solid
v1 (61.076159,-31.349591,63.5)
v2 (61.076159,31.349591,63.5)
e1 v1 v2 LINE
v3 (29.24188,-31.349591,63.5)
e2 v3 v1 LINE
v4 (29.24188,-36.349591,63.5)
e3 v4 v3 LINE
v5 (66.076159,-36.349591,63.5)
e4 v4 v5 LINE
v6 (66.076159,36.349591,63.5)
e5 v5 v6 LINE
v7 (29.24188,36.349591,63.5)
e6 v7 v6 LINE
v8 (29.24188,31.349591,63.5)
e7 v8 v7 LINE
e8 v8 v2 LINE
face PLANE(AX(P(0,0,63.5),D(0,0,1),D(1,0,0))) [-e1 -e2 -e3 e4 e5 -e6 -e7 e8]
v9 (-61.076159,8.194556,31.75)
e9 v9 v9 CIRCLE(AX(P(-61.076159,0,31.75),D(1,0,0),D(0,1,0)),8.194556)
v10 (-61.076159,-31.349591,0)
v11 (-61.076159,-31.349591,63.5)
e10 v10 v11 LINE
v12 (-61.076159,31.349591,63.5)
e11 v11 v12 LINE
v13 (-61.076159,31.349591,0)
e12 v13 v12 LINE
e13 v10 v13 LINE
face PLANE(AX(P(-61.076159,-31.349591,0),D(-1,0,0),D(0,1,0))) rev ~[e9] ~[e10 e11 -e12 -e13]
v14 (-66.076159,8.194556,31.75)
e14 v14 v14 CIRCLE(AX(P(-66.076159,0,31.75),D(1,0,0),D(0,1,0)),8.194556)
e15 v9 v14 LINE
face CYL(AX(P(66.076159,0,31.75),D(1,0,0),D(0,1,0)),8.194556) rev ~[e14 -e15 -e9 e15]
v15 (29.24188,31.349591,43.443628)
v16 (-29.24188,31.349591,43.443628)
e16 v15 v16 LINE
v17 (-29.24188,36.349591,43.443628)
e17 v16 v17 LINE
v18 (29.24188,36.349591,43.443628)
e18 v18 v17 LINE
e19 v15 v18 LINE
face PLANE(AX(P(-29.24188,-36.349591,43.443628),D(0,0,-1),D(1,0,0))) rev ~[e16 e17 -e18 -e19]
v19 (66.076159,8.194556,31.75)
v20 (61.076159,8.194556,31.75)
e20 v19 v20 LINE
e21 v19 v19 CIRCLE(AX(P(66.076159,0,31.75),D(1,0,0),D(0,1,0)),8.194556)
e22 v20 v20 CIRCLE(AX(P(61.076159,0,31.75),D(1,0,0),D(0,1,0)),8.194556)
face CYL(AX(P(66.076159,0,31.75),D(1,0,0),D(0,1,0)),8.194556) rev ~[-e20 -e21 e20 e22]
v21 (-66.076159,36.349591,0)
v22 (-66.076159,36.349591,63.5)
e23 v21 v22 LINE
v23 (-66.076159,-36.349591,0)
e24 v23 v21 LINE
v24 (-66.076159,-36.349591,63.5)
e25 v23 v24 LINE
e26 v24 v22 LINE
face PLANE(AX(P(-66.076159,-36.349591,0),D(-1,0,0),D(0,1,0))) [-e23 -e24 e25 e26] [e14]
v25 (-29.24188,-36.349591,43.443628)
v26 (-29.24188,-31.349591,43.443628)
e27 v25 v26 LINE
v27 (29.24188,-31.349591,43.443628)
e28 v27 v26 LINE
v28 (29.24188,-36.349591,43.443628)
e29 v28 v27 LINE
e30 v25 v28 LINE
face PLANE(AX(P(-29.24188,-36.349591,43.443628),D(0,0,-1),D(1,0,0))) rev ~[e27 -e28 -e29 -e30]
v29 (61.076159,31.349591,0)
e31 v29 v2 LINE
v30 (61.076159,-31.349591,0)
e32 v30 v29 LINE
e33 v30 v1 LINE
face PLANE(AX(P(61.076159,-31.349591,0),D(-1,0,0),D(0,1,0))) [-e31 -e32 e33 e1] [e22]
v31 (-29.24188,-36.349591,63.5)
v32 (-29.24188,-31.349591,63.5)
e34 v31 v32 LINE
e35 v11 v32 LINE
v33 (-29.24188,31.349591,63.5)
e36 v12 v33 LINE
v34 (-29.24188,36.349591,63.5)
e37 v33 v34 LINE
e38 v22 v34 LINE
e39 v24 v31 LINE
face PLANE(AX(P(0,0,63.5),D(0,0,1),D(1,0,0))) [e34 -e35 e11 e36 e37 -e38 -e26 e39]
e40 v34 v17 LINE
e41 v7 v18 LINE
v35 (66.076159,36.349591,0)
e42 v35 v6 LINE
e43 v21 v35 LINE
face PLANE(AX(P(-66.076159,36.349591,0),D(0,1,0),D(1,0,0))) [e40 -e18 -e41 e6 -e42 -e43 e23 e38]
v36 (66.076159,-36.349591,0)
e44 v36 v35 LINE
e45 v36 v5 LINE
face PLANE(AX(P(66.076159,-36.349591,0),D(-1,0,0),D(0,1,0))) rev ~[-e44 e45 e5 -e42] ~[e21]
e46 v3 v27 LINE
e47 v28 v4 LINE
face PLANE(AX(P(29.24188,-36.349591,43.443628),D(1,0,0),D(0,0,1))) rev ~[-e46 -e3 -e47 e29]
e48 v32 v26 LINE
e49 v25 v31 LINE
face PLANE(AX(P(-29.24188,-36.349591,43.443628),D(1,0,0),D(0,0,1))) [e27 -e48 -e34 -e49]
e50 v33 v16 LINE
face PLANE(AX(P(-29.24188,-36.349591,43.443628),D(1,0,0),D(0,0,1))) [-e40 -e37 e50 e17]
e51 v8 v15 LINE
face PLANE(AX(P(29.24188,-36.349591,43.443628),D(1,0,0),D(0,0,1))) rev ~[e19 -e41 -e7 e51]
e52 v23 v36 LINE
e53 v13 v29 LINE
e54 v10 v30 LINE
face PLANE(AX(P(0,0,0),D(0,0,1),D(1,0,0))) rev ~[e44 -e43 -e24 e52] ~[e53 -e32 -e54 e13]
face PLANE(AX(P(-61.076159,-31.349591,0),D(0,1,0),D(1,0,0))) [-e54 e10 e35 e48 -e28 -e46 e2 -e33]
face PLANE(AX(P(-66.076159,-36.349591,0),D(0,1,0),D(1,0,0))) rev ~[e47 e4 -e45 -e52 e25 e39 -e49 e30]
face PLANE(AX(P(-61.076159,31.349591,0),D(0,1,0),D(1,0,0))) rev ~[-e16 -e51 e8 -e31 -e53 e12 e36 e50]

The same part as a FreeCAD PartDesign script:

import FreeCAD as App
import Part
import Sketcher
Q = App.Units.Quantity

doc = App.newDocument("Part")
params = doc.addObject("Spreadsheet::Sheet", "Params")
for row, (alias, value) in enumerate([
    ("pad1_length", "2.5 in"),
], start=1):
    params.set(f"A{row}", alias)
    params.set(f"B{row}", "=" + value)
    params.setAlias(f"B{row}", alias)

body = doc.addObject("PartDesign::Body", "Body")

# Sketch on XY plane
sketch1 = doc.addObject("Sketcher::SketchObject", "Sketch")
body.addObject(sketch1)
sketch1.AttachmentSupport = (doc.XY_Plane, [""])
sketch1.MapMode = "FlatFace"
sketch1.addGeometry([
    Part.LineSegment(App.Vector(-66.076159, 36.349591, 0), App.Vector(-66.076159, -36.349591, 0)),  # 0
    Part.LineSegment(App.Vector(-66.076159, -36.349591, 0), App.Vector(66.076159, -36.349591, 0)),  # 1
    Part.LineSegment(App.Vector(66.076159, -36.349591, 0), App.Vector(66.076159, 36.349591, 0)),  # 2
    Part.LineSegment(App.Vector(66.076159, 36.349591, 0), App.Vector(-66.076159, 36.349591, 0)),  # 3
    Part.LineSegment(App.Vector(61.076159, -31.349591, 0), App.Vector(-61.076159, -31.349591, 0)),  # 4
    Part.LineSegment(App.Vector(-61.076159, -31.349591, 0), App.Vector(-61.076159, 31.349591, 0)),  # 5
    Part.LineSegment(App.Vector(-61.076159, 31.349591, 0), App.Vector(61.076159, 31.349591, 0)),  # 6
    Part.LineSegment(App.Vector(61.076159, 31.349591, 0), App.Vector(61.076159, -31.349591, 0)),  # 7
], False)
sketch1.addConstraint([
    Sketcher.Constraint("Coincident", 0, 2, 1, 1),
    Sketcher.Constraint("Coincident", 1, 2, 2, 1),
    Sketcher.Constraint("Coincident", 2, 2, 3, 1),
    Sketcher.Constraint("Coincident", 3, 2, 0, 1),
    Sketcher.Constraint("Coincident", 4, 2, 5, 1),
    Sketcher.Constraint("Coincident", 5, 2, 6, 1),
    Sketcher.Constraint("Coincident", 6, 2, 7, 1),
    Sketcher.Constraint("Coincident", 7, 2, 4, 1),
    Sketcher.Constraint("Vertical", 0),
    Sketcher.Constraint("Horizontal", 1),
    Sketcher.Constraint("Vertical", 2),
    Sketcher.Constraint("Horizontal", 3),
    Sketcher.Constraint("Horizontal", 4),
    Sketcher.Constraint("Vertical", 5),
    Sketcher.Constraint("Horizontal", 6),
    Sketcher.Constraint("Vertical", 7),
    Sketcher.Constraint("Symmetric", 0, 2, 2, 2, -1, 1),
    Sketcher.Constraint("Symmetric", 4, 2, 6, 2, -1, 1),
    Sketcher.Constraint("DistanceX", 1, 1, 1, 2, 132.152318),
    Sketcher.Constraint("DistanceY", 0, 2, 0, 1, 72.699182),
    Sketcher.Constraint("DistanceX", 0, 2, 4, 2, 5.0),
    Sketcher.Constraint("DistanceY", 0, 2, 4, 2, 5.0),
])
pad1 = doc.addObject("PartDesign::Pad", "Pad")
body.addObject(pad1)
pad1.Profile = sketch1
pad1.setExpression("Length", "Params.pad1_length")

# Sketch on YZ plane
sketch2 = doc.addObject("Sketcher::SketchObject", "Sketch001")
body.addObject(sketch2)
sketch2.AttachmentSupport = (doc.YZ_Plane, [""])
sketch2.MapMode = "FlatFace"
sketch2.AttachmentOffset = App.Placement(App.Vector(0, 0, 66.076159), App.Rotation())
sketch2.addGeometry(Part.Circle(App.Vector(0, 31.75, 0), App.Vector(0, 0, 1), 8.194556), False)
sketch2.addConstraint([
    Sketcher.Constraint("PointOnObject", 0, 3, -2),
    Sketcher.Constraint("DistanceY", -1, 1, 0, 3, Q("1.25 in")),
    Sketcher.Constraint("Diameter", 0, 16.389112),
])
pocket1 = doc.addObject("PartDesign::Pocket", "Pocket")
body.addObject(pocket1)
pocket1.Profile = sketch2
pocket1.Type = "ThroughAll"

# Sketch on XZ plane
sketch3 = doc.addObject("Sketcher::SketchObject", "Sketch002")
body.addObject(sketch3)
sketch3.AttachmentSupport = (doc.XZ_Plane, [""])
sketch3.MapMode = "FlatFace"
sketch3.AttachmentOffset = App.Placement(App.Vector(0, 0, 36.349591), App.Rotation())
sketch3.addGeometry([
    Part.LineSegment(App.Vector(-29.24188, 63.5, 0), App.Vector(-29.24188, 43.443628, 0)),
    Part.LineSegment(App.Vector(-29.24188, 43.443628, 0), App.Vector(29.24188, 43.443628, 0)),
    Part.LineSegment(App.Vector(29.24188, 43.443628, 0), App.Vector(29.24188, 63.5, 0)),
    Part.LineSegment(App.Vector(29.24188, 63.5, 0), App.Vector(-29.24188, 63.5, 0)),
], False)
sketch3.addConstraint([
    Sketcher.Constraint("Coincident", 0, 2, 1, 1),
    Sketcher.Constraint("Coincident", 1, 2, 2, 1),
    Sketcher.Constraint("Coincident", 2, 2, 3, 1),
    Sketcher.Constraint("Coincident", 3, 2, 0, 1),
    Sketcher.Constraint("Vertical", 0),
    Sketcher.Constraint("Horizontal", 1),
    Sketcher.Constraint("Vertical", 2),
    Sketcher.Constraint("Horizontal", 3),
    Sketcher.Constraint("DistanceY", -1, 1, 2, 2, Q("2.5 in")),
    Sketcher.Constraint("DistanceX", 1, 1, 1, 2, 58.48376),
    Sketcher.Constraint("DistanceY", 0, 2, 0, 1, 20.056372),
    Sketcher.Constraint("DistanceX", 0, 2, -1, 1, 29.24188),
])
pocket2 = doc.addObject("PartDesign::Pocket", "Pocket001")
body.addObject(pocket2)
pocket2.Profile = sketch3
pocket2.Type = "ThroughAll"

doc.recompute()
